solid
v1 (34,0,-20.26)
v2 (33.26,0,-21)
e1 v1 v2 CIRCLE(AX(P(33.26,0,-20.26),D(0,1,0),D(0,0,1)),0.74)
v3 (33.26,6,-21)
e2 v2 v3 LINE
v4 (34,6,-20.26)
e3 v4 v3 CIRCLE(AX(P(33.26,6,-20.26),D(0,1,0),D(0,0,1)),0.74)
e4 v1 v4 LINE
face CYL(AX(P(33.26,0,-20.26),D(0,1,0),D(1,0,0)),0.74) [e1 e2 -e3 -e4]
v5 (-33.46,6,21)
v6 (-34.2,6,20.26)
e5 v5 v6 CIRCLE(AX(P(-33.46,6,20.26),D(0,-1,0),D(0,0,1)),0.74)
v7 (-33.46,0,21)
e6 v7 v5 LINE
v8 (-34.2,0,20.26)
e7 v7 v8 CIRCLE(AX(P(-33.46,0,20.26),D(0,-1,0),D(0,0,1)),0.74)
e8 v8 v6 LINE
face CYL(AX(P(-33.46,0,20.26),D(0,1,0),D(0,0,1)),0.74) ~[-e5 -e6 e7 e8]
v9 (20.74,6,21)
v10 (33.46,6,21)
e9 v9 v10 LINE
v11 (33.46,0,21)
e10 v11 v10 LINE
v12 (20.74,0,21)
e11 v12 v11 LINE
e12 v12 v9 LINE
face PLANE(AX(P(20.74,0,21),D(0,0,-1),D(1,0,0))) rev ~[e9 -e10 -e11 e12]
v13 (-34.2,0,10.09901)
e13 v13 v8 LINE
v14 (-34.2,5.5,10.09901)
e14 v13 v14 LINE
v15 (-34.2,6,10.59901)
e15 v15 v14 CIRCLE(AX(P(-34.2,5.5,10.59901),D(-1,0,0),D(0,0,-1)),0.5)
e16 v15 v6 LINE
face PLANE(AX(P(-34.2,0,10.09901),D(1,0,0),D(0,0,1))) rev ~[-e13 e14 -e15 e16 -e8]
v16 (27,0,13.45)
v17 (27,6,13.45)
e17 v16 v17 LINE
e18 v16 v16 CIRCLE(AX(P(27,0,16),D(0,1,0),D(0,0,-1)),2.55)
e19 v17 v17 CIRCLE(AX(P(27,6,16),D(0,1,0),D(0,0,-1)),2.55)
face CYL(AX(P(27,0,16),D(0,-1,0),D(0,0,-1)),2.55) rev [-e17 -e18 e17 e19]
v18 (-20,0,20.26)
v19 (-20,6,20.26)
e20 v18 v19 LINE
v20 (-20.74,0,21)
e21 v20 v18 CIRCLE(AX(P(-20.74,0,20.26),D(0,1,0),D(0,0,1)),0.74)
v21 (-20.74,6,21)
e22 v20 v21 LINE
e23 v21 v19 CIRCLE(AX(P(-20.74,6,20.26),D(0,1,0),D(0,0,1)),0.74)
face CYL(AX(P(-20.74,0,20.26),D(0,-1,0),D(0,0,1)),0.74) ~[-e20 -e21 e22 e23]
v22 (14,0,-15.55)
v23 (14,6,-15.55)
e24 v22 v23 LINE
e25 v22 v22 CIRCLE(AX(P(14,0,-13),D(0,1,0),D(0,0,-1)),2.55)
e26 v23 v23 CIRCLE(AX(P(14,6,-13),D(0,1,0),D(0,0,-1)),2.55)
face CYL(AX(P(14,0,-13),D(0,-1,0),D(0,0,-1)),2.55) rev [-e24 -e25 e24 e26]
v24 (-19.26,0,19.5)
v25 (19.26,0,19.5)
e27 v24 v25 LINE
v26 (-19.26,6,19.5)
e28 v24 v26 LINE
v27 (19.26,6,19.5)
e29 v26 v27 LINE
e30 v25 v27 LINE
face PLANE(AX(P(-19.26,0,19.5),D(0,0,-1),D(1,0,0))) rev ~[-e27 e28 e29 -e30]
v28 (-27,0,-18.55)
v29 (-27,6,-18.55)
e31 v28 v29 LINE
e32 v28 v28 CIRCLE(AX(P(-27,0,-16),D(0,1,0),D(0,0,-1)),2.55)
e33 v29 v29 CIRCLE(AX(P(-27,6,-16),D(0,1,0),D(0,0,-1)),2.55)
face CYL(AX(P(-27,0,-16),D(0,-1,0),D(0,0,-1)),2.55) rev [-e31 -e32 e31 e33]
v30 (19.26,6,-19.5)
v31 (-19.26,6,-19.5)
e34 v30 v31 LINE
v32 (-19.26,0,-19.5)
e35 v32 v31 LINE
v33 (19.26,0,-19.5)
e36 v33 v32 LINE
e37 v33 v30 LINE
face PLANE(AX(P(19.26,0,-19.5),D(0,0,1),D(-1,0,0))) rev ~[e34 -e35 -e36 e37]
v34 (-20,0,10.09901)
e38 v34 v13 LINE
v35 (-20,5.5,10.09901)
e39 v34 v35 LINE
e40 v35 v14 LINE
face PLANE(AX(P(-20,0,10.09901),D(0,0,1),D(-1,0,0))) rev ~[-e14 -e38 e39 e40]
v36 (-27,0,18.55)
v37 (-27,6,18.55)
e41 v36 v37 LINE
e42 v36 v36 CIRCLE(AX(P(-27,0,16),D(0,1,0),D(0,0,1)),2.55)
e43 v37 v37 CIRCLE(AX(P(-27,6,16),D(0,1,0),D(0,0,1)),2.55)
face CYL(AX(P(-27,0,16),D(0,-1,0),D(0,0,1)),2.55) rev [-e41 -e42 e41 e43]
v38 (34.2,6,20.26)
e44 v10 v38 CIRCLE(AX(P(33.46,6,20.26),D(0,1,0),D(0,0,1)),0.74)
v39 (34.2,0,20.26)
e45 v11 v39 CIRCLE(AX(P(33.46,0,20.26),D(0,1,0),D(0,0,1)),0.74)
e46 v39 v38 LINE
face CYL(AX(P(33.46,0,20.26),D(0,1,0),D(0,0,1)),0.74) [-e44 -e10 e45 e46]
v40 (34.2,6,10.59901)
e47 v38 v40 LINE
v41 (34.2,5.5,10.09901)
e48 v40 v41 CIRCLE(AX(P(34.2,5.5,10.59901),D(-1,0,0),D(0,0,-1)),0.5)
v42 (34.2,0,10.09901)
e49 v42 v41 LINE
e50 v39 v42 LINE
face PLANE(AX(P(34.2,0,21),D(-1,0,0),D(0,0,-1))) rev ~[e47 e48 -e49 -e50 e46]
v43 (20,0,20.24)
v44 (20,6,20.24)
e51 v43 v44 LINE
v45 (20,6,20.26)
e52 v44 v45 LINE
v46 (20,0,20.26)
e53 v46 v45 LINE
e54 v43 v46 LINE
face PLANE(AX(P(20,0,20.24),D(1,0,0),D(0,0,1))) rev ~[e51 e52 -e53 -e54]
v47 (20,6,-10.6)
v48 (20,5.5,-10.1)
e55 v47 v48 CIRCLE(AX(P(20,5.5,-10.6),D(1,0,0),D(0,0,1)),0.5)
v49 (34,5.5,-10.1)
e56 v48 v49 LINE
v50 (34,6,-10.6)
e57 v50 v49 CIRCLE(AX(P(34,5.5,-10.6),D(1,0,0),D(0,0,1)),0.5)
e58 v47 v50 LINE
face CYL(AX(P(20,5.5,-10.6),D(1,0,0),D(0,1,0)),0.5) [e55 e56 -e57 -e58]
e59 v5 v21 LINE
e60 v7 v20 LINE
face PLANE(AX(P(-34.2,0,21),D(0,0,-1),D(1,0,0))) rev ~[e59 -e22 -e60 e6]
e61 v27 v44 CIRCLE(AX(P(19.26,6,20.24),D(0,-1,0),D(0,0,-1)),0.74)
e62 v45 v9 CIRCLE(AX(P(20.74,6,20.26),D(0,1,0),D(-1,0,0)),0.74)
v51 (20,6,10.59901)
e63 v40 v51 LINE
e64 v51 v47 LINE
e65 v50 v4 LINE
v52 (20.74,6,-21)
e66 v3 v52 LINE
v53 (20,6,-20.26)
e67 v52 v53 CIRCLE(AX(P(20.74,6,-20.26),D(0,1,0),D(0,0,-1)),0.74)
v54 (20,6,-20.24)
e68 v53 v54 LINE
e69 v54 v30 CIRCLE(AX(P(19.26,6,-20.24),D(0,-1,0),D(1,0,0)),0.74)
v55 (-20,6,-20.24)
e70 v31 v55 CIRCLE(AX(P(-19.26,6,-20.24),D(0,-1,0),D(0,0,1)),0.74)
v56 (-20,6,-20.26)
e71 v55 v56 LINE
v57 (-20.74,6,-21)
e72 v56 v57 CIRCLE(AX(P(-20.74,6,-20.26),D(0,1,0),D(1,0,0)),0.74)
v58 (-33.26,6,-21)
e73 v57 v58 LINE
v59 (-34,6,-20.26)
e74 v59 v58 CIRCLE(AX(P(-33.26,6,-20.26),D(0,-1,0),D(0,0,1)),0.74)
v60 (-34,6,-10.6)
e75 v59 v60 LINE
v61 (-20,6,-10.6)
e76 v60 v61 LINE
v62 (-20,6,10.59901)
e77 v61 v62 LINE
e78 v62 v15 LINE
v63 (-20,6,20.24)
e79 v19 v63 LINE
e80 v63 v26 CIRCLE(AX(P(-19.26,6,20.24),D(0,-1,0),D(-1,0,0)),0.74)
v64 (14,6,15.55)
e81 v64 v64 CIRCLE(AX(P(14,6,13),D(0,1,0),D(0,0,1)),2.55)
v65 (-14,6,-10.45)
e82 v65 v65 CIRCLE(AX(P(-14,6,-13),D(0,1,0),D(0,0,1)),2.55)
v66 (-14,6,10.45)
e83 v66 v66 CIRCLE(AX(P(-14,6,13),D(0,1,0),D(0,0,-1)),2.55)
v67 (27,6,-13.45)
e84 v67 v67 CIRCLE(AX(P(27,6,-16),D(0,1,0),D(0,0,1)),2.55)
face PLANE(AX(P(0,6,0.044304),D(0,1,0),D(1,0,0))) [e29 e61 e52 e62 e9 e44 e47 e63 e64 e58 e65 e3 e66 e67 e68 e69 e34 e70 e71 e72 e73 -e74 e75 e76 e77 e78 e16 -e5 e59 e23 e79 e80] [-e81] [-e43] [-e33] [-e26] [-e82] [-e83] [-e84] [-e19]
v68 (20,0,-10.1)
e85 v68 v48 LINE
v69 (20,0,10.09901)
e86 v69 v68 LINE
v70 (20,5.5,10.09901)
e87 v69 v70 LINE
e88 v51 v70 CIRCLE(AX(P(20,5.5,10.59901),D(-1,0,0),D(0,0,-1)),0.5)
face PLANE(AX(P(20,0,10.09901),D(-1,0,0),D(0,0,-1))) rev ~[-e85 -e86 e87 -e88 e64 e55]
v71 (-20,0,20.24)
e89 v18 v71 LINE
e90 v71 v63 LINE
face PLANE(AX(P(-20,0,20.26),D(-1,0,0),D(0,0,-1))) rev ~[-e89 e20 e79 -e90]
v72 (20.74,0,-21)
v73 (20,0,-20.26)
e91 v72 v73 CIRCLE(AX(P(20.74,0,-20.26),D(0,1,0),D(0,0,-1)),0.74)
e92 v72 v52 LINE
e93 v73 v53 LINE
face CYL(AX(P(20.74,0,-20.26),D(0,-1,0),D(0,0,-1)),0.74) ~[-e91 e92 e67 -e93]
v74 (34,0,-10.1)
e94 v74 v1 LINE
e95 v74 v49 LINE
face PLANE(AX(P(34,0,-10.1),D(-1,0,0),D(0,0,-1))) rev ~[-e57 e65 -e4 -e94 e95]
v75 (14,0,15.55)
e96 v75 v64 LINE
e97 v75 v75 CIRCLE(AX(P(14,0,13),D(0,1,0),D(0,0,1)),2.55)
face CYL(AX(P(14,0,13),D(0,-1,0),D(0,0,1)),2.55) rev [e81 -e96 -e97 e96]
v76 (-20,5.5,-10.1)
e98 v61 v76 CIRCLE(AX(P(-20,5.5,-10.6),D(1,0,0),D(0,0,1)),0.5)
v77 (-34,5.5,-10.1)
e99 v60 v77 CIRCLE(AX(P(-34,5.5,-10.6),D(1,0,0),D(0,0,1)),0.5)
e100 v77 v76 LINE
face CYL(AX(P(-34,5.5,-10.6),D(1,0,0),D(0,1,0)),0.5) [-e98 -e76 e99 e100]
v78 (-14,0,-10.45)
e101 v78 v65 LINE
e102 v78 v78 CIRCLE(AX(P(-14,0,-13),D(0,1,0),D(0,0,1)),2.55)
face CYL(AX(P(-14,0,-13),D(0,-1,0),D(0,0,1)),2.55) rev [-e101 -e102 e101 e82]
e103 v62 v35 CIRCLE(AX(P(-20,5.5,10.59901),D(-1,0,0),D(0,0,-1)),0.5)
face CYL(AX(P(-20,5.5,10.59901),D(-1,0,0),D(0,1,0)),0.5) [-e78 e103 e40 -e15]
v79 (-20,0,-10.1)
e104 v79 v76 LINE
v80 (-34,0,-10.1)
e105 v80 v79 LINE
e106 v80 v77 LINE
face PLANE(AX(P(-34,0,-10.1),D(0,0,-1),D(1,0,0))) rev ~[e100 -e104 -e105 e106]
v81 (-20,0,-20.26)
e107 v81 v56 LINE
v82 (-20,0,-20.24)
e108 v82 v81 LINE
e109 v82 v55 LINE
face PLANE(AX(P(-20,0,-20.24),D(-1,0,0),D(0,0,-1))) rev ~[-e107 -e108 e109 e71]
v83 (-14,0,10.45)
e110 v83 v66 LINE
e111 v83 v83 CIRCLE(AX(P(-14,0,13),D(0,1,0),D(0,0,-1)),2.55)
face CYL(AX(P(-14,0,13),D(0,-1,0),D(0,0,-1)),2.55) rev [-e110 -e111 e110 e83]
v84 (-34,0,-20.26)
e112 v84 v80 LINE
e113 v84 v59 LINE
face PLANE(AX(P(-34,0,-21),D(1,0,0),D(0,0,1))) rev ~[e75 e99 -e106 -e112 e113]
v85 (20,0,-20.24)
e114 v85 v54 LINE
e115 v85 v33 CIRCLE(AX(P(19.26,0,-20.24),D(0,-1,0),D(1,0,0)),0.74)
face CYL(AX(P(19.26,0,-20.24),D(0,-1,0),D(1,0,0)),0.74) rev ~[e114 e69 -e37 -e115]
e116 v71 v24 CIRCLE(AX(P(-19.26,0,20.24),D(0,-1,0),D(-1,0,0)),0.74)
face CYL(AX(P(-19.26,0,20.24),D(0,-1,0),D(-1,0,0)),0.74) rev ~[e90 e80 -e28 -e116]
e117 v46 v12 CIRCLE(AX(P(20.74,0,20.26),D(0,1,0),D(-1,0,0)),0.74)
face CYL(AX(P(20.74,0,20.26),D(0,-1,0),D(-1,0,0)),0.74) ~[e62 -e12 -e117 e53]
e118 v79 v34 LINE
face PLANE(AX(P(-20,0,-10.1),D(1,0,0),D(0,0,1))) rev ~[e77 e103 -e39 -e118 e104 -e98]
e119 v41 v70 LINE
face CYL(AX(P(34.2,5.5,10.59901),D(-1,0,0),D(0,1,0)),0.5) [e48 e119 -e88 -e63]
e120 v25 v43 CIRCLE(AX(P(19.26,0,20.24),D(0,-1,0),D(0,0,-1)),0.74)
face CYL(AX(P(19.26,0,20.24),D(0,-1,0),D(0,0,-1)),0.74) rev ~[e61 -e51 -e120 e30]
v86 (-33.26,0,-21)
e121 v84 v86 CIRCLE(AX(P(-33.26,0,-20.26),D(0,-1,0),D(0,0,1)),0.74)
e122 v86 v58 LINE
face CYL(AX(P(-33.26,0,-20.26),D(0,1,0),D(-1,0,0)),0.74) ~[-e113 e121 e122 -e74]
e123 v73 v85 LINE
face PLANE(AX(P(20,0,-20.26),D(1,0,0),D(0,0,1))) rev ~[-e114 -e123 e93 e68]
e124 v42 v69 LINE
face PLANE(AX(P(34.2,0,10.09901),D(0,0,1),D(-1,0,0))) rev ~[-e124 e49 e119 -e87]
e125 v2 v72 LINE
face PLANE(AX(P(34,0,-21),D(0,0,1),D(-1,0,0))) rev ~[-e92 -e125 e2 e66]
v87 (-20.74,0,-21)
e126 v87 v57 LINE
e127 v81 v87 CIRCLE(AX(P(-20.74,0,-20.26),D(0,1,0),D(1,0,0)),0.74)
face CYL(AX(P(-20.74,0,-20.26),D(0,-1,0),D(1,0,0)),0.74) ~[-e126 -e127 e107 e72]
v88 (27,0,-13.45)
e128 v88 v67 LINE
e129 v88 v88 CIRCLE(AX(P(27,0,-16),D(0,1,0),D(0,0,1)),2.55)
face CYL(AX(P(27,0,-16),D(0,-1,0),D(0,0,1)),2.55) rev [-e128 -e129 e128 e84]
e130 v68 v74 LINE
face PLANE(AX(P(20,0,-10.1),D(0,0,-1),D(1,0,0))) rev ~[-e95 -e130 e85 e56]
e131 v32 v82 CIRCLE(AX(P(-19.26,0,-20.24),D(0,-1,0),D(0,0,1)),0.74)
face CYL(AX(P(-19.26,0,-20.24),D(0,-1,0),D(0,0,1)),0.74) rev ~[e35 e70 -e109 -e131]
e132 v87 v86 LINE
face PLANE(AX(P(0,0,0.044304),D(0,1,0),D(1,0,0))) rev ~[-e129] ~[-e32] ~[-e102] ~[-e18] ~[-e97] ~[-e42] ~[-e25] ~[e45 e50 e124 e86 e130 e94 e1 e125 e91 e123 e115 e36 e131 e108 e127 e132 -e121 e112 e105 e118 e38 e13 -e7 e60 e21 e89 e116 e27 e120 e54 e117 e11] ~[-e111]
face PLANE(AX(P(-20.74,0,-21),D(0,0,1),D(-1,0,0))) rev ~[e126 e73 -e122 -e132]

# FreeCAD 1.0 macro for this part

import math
import FreeCAD as App
import Part
import Sketcher
Q = App.Units.Quantity


def edges_at(feature, points):
    """Names of the edges that pass closest to the given points."""
    edges = feature.Shape.Edges
    near = lambda p: min(range(len(edges)), key=lambda i: edges[i].distToShape(Part.Vertex(*p))[0])
    return sorted({f"Edge{near(p) + 1}" for p in points})

doc = App.newDocument("Part")
params = doc.addObject("Spreadsheet::Sheet", "Params")
for row, (alias, value) in enumerate([
    ("sketch1_diameter", "5.1 mm"),
    ("sketch1_width", "14 mm"),
    ("sketch1_radius", "0.74 mm"),
    ("sketch1_width2", "14.2 mm"),
    ("sketch1_height", "10.9 mm"),
    ("pad1_length", "6 mm"),
    ("fillet_radius", "0.74 mm"),
    ("fillet2_radius", "0.5 mm"),
], start=1):
    params.set(f"A{row}", alias)
    params.set(f"B{row}", "=" + value)
    params.setAlias(f"B{row}", alias)

body = doc.addObject("PartDesign::Body", "Body")

# Sketch on XZ plane
sketch1 = doc.addObject("Sketcher::SketchObject", "Sketch")
body.addObject(sketch1)
sketch1.AttachmentSupport = (doc.XZ_Plane, [""])
sketch1.MapMode = "FlatFace"
sketch1.addGeometry(Part.LineSegment(App.Vector(-19.26, 19.5, 0), App.Vector(19.26, 19.5, 0)), False)
sketch1.addGeometry(Part.ArcOfCircle(Part.Circle(App.Vector(19.26, 20.24, 0), App.Vector(0, 0, 1), 0.74), math.radians(-90), math.radians(0)), False)
sketch1.addGeometry(Part.LineSegment(App.Vector(20, 20.24, 0), App.Vector(20, 20.26, 0)), False)
sketch1.addGeometry(Part.ArcOfCircle(Part.Circle(App.Vector(20.74, 20.26, 0), App.Vector(0, 0, 1), 0.74), math.radians(90), math.radians(180)), False)
sketch1.addGeometry(Part.LineSegment(App.Vector(20.74, 21, 0), App.Vector(34.2, 21, 0)), False)
sketch1.addGeometry(Part.LineSegment(App.Vector(34.2, 21, 0), App.Vector(34.2, 10.099, 0)), False)
sketch1.addGeometry(Part.LineSegment(App.Vector(34.2, 10.099, 0), App.Vector(20, 10.099, 0)), False)
sketch1.addGeometry(Part.LineSegment(App.Vector(20, 10.099, 0), App.Vector(20, -10.1, 0)), False)
sketch1.addGeometry(Part.LineSegment(App.Vector(20, -10.1, 0), App.Vector(34, -10.1, 0)), False)
sketch1.addGeometry(Part.LineSegment(App.Vector(34, -10.1, 0), App.Vector(34, -21, 0)), False)
sketch1.addGeometry(Part.LineSegment(App.Vector(34, -21, 0), App.Vector(20.74, -21, 0)), False)
sketch1.addGeometry(Part.ArcOfCircle(Part.Circle(App.Vector(20.74, -20.26, 0), App.Vector(0, 0, 1), 0.74), math.radians(180), math.radians(270)), False)
sketch1.addGeometry(Part.LineSegment(App.Vector(20, -20.26, 0), App.Vector(20, -20.24, 0)), False)
sketch1.addGeometry(Part.ArcOfCircle(Part.Circle(App.Vector(19.26, -20.24, 0), App.Vector(0, 0, 1), 0.74), math.radians(0), math.radians(90)), False)
sketch1.addGeometry(Part.LineSegment(App.Vector(19.26, -19.5, 0), App.Vector(-19.26, -19.5, 0)), False)
sketch1.addGeometry(Part.ArcOfCircle(Part.Circle(App.Vector(-19.26, -20.24, 0), App.Vector(0, 0, 1), 0.74), math.radians(90), math.radians(180)), False)
sketch1.addGeometry(Part.LineSegment(App.Vector(-20, -20.24, 0), App.Vector(-20, -20.26, 0)), False)
sketch1.addGeometry(Part.ArcOfCircle(Part.Circle(App.Vector(-20.74, -20.26, 0), App.Vector(0, 0, 1), 0.74), math.radians(-90), math.radians(0)), False)
sketch1.addGeometry(Part.LineSegment(App.Vector(-20.74, -21, 0), App.Vector(-34, -21, 0)), False)
sketch1.addGeometry(Part.LineSegment(App.Vector(-34, -21, 0), App.Vector(-34, -10.1, 0)), False)
sketch1.addGeometry(Part.LineSegment(App.Vector(-34, -10.1, 0), App.Vector(-20, -10.1, 0)), False)
sketch1.addGeometry(Part.LineSegment(App.Vector(-20, -10.1, 0), App.Vector(-20, 10.099, 0)), False)
sketch1.addGeometry(Part.LineSegment(App.Vector(-20, 10.099, 0), App.Vector(-34.2, 10.099, 0)), False)
sketch1.addGeometry(Part.LineSegment(App.Vector(-34.2, 10.099, 0), App.Vector(-34.2, 21, 0)), False)
sketch1.addGeometry(Part.LineSegment(App.Vector(-34.2, 21, 0), App.Vector(-20.74, 21, 0)), False)
sketch1.addGeometry(Part.ArcOfCircle(Part.Circle(App.Vector(-20.74, 20.26, 0), App.Vector(0, 0, 1), 0.74), math.radians(0), math.radians(90)), False)
sketch1.addGeometry(Part.LineSegment(App.Vector(-20, 20.26, 0), App.Vector(-20, 20.24, 0)), False)
sketch1.addGeometry(Part.ArcOfCircle(Part.Circle(App.Vector(-19.26, 20.24, 0), App.Vector(0, 0, 1), 0.74), math.radians(180), math.radians(270)), False)
sketch1.addGeometry(Part.Circle(App.Vector(-27, 16, 0), App.Vector(0, 0, 1), 2.55), False)
sketch1.addGeometry(Part.Circle(App.Vector(-14, 13, 0), App.Vector(0, 0, 1), 2.55), False)
sketch1.addGeometry(Part.Circle(App.Vector(14, 13, 0), App.Vector(0, 0, 1), 2.55), False)
sketch1.addGeometry(Part.Circle(App.Vector(27, 16, 0), App.Vector(0, 0, 1), 2.55), False)
sketch1.addGeometry(Part.Circle(App.Vector(-27, -16, 0), App.Vector(0, 0, 1), 2.55), False)
sketch1.addGeometry(Part.Circle(App.Vector(-14, -13, 0), App.Vector(0, 0, 1), 2.55), False)
sketch1.addGeometry(Part.Circle(App.Vector(14, -13, 0), App.Vector(0, 0, 1), 2.55), False)
sketch1.addGeometry(Part.Circle(App.Vector(27, -16, 0), App.Vector(0, 0, 1), 2.55), False)
sketch1.addConstraint(Sketcher.Constraint("Tangent", 0, 2, 1, 1))
sketch1.addConstraint(Sketcher.Constraint("Tangent", 1, 2, 2, 1))
sketch1.addConstraint(Sketcher.Constraint("Tangent", 2, 2, 3, 2))
sketch1.addConstraint(Sketcher.Constraint("Tangent", 3, 1, 4, 1))
sketch1.addConstraint(Sketcher.Constraint("Coincident", 4, 2, 5, 1))
sketch1.addConstraint(Sketcher.Constraint("Coincident", 5, 2, 6, 1))
sketch1.addConstraint(Sketcher.Constraint("Coincident", 6, 2, 7, 1))
sketch1.addConstraint(Sketcher.Constraint("Coincident", 7, 2, 8, 1))
sketch1.addConstraint(Sketcher.Constraint("Coincident", 8, 2, 9, 1))
sketch1.addConstraint(Sketcher.Constraint("Coincident", 9, 2, 10, 1))
sketch1.addConstraint(Sketcher.Constraint("Tangent", 10, 2, 11, 2))
sketch1.addConstraint(Sketcher.Constraint("Tangent", 11, 1, 12, 1))
sketch1.addConstraint(Sketcher.Constraint("Tangent", 12, 2, 13, 1))
sketch1.addConstraint(Sketcher.Constraint("Tangent", 13, 2, 14, 1))
sketch1.addConstraint(Sketcher.Constraint("Tangent", 14, 2, 15, 1))
sketch1.addConstraint(Sketcher.Constraint("Tangent", 15, 2, 16, 1))
sketch1.addConstraint(Sketcher.Constraint("Tangent", 16, 2, 17, 2))
sketch1.addConstraint(Sketcher.Constraint("Tangent", 17, 1, 18, 1))
sketch1.addConstraint(Sketcher.Constraint("Coincident", 18, 2, 19, 1))
sketch1.addConstraint(Sketcher.Constraint("Coincident", 19, 2, 20, 1))
sketch1.addConstraint(Sketcher.Constraint("Coincident", 20, 2, 21, 1))
sketch1.addConstraint(Sketcher.Constraint("Coincident", 21, 2, 22, 1))
sketch1.addConstraint(Sketcher.Constraint("Coincident", 22, 2, 23, 1))
sketch1.addConstraint(Sketcher.Constraint("Coincident", 23, 2, 24, 1))
sketch1.addConstraint(Sketcher.Constraint("Tangent", 24, 2, 25, 2))
sketch1.addConstraint(Sketcher.Constraint("Tangent", 25, 1, 26, 1))
sketch1.addConstraint(Sketcher.Constraint("Tangent", 26, 2, 27, 1))
sketch1.addConstraint(Sketcher.Constraint("Tangent", 27, 2, 0, 1))
sketch1.addConstraint(Sketcher.Constraint("Horizontal", 0))
sketch1.addConstraint(Sketcher.Constraint("Vertical", 2))
sketch1.addConstraint(Sketcher.Constraint("Horizontal", 4))
sketch1.addConstraint(Sketcher.Constraint("Vertical", 5))
sketch1.addConstraint(Sketcher.Constraint("Horizontal", 6))
sketch1.addConstraint(Sketcher.Constraint("Vertical", 7))
sketch1.addConstraint(Sketcher.Constraint("Horizontal", 8))
sketch1.addConstraint(Sketcher.Constraint("Vertical", 9))
sketch1.addConstraint(Sketcher.Constraint("Horizontal", 10))
sketch1.addConstraint(Sketcher.Constraint("Vertical", 12))
sketch1.addConstraint(Sketcher.Constraint("Horizontal", 14))
sketch1.addConstraint(Sketcher.Constraint("Vertical", 16))
sketch1.addConstraint(Sketcher.Constraint("Horizontal", 18))
sketch1.addConstraint(Sketcher.Constraint("Vertical", 19))
sketch1.addConstraint(Sketcher.Constraint("Horizontal", 20))
sketch1.addConstraint(Sketcher.Constraint("Vertical", 21))
sketch1.addConstraint(Sketcher.Constraint("Horizontal", 22))
sketch1.addConstraint(Sketcher.Constraint("Vertical", 23))
sketch1.addConstraint(Sketcher.Constraint("Horizontal", 24))
sketch1.addConstraint(Sketcher.Constraint("Vertical", 26))
sketch1.addConstraint(Sketcher.Constraint("Equal", 1, 3))
sketch1.addConstraint(Sketcher.Constraint("Equal", 3, 11))
sketch1.addConstraint(Sketcher.Constraint("Equal", 11, 13))
sketch1.addConstraint(Sketcher.Constraint("Equal", 13, 15))
sketch1.addConstraint(Sketcher.Constraint("Equal", 15, 17))
sketch1.addConstraint(Sketcher.Constraint("Equal", 17, 25))
sketch1.addConstraint(Sketcher.Constraint("Equal", 25, 27))
sketch1.addConstraint(Sketcher.Constraint("Equal", 28, 29))
sketch1.addConstraint(Sketcher.Constraint("Equal", 29, 30))
sketch1.addConstraint(Sketcher.Constraint("Equal", 30, 31))
sketch1.addConstraint(Sketcher.Constraint("Equal", 31, 32))
sketch1.addConstraint(Sketcher.Constraint("Equal", 32, 33))
sketch1.addConstraint(Sketcher.Constraint("Equal", 33, 34))
sketch1.addConstraint(Sketcher.Constraint("Equal", 34, 35))
sketch1.addConstraint(Sketcher.Constraint("Symmetric", 1, 3, 15, 3, -1, 1))
sketch1.addConstraint(Sketcher.Constraint("Symmetric", 11, 3, 25, 3, -1, 1))
sketch1.addConstraint(Sketcher.Constraint("Symmetric", 31, 3, 32, 3, -1, 1))
sketch1.addConstraint(Sketcher.Constraint("Symmetric", 30, 3, 33, 3, -1, 1))
sketch1.addConstraint(Sketcher.Constraint("Symmetric", 29, 3, 34, 3, -1, 1))
sketch1.addConstraint(Sketcher.Constraint("Symmetric", 28, 3, 35, 3, -1, 1))
sketch1.addConstraint(Sketcher.Constraint("Symmetric", 11, 3, 17, 3, -2))
sketch1.addConstraint(Sketcher.Constraint("Symmetric", 29, 3, 30, 3, -2))
sketch1.addConstraint(Sketcher.Constraint("Symmetric", 28, 3, 31, 3, -2))
sketch1.addConstraint(Sketcher.Constraint("Symmetric", 8, 2, 19, 2, -2))
sketch1.addConstraint(Sketcher.Constraint("Symmetric", 6, 2, 21, 2, -2))
sketch1.addConstraint(Sketcher.Constraint("Symmetric", 4, 2, 23, 2, -2))
sketch1.addConstraint(Sketcher.Constraint("Vertical", 2, 2, 6, 2))
sketch1.addConstraint(Sketcher.Constraint("Diameter", 28, Q("5.1 mm")))
sketch1.addConstraint(Sketcher.Constraint("DistanceX", 8, 1, 8, 2, Q("14 mm")))
sketch1.addConstraint(Sketcher.Constraint("Radius", 1, Q("0.74 mm")))
sketch1.addConstraint(Sketcher.Constraint("DistanceX", 6, 2, 6, 1, Q("14.2 mm")))
sketch1.addConstraint(Sketcher.Constraint("DistanceY", 9, 2, 9, 1, Q("10.9 mm")))
sketch1.addConstraint(Sketcher.Constraint("DistanceX", 28, 3, -1, 1, Q("27 mm")))
sketch1.addConstraint(Sketcher.Constraint("DistanceY", -1, 1, 28, 3, Q("16 mm")))
sketch1.addConstraint(Sketcher.Constraint("DistanceX", 29, 3, -1, 1, Q("14 mm")))
sketch1.addConstraint(Sketcher.Constraint("DistanceY", -1, 1, 29, 3, Q("13 mm")))
sketch1.addConstraint(Sketcher.Constraint("DistanceX", -1, 1, 1, 2, Q("20 mm")))
sketch1.addConstraint(Sketcher.Constraint("DistanceY", -1, 1, 3, 1, Q("21 mm")))
sketch1.addConstraint(Sketcher.Constraint("DistanceY", 2, 1, 2, 2, Q("0.02 mm")))
sketch1.addConstraint(Sketcher.Constraint("DistanceY", 5, 2, 5, 1, Q("10.90099 mm")))
sketch1.setExpression("Constraints[75]", "Params.sketch1_diameter")
sketch1.setExpression("Constraints[76]", "Params.sketch1_width")
sketch1.setExpression("Constraints[77]", "Params.sketch1_radius")
sketch1.setExpression("Constraints[78]", "Params.sketch1_width2")
sketch1.setExpression("Constraints[79]", "Params.sketch1_height")
pad1 = doc.addObject("PartDesign::Pad", "Pad")
body.addObject(pad1)
pad1.Profile = sketch1
pad1.setExpression("Length", "Params.pad1_length")
pad1.Reversed = True
doc.recompute()

fillet = doc.addObject("PartDesign::Fillet", "Fillet")
body.addObject(fillet)
fillet.Base = (pad1, edges_at(pad1, [
    (34.2, 3, 21),
    (-34.2, 3, 21),
    (-34, 3, -21),
    (34, 3, -21),
]))
fillet.setExpression("Radius", "Params.fillet_radius")
doc.recompute()

fillet2 = doc.addObject("PartDesign::Fillet", "Fillet001")
body.addObject(fillet2)
fillet2.Base = (fillet, edges_at(fillet, [
    (27.1, 6, 10.099),
    (-27, 6, -10.1),
    (-27.1, 6, 10.099),
    (27, 6, -10.1),
]))
fillet2.setExpression("Radius", "Params.fillet2_radius")

doc.recompute()
